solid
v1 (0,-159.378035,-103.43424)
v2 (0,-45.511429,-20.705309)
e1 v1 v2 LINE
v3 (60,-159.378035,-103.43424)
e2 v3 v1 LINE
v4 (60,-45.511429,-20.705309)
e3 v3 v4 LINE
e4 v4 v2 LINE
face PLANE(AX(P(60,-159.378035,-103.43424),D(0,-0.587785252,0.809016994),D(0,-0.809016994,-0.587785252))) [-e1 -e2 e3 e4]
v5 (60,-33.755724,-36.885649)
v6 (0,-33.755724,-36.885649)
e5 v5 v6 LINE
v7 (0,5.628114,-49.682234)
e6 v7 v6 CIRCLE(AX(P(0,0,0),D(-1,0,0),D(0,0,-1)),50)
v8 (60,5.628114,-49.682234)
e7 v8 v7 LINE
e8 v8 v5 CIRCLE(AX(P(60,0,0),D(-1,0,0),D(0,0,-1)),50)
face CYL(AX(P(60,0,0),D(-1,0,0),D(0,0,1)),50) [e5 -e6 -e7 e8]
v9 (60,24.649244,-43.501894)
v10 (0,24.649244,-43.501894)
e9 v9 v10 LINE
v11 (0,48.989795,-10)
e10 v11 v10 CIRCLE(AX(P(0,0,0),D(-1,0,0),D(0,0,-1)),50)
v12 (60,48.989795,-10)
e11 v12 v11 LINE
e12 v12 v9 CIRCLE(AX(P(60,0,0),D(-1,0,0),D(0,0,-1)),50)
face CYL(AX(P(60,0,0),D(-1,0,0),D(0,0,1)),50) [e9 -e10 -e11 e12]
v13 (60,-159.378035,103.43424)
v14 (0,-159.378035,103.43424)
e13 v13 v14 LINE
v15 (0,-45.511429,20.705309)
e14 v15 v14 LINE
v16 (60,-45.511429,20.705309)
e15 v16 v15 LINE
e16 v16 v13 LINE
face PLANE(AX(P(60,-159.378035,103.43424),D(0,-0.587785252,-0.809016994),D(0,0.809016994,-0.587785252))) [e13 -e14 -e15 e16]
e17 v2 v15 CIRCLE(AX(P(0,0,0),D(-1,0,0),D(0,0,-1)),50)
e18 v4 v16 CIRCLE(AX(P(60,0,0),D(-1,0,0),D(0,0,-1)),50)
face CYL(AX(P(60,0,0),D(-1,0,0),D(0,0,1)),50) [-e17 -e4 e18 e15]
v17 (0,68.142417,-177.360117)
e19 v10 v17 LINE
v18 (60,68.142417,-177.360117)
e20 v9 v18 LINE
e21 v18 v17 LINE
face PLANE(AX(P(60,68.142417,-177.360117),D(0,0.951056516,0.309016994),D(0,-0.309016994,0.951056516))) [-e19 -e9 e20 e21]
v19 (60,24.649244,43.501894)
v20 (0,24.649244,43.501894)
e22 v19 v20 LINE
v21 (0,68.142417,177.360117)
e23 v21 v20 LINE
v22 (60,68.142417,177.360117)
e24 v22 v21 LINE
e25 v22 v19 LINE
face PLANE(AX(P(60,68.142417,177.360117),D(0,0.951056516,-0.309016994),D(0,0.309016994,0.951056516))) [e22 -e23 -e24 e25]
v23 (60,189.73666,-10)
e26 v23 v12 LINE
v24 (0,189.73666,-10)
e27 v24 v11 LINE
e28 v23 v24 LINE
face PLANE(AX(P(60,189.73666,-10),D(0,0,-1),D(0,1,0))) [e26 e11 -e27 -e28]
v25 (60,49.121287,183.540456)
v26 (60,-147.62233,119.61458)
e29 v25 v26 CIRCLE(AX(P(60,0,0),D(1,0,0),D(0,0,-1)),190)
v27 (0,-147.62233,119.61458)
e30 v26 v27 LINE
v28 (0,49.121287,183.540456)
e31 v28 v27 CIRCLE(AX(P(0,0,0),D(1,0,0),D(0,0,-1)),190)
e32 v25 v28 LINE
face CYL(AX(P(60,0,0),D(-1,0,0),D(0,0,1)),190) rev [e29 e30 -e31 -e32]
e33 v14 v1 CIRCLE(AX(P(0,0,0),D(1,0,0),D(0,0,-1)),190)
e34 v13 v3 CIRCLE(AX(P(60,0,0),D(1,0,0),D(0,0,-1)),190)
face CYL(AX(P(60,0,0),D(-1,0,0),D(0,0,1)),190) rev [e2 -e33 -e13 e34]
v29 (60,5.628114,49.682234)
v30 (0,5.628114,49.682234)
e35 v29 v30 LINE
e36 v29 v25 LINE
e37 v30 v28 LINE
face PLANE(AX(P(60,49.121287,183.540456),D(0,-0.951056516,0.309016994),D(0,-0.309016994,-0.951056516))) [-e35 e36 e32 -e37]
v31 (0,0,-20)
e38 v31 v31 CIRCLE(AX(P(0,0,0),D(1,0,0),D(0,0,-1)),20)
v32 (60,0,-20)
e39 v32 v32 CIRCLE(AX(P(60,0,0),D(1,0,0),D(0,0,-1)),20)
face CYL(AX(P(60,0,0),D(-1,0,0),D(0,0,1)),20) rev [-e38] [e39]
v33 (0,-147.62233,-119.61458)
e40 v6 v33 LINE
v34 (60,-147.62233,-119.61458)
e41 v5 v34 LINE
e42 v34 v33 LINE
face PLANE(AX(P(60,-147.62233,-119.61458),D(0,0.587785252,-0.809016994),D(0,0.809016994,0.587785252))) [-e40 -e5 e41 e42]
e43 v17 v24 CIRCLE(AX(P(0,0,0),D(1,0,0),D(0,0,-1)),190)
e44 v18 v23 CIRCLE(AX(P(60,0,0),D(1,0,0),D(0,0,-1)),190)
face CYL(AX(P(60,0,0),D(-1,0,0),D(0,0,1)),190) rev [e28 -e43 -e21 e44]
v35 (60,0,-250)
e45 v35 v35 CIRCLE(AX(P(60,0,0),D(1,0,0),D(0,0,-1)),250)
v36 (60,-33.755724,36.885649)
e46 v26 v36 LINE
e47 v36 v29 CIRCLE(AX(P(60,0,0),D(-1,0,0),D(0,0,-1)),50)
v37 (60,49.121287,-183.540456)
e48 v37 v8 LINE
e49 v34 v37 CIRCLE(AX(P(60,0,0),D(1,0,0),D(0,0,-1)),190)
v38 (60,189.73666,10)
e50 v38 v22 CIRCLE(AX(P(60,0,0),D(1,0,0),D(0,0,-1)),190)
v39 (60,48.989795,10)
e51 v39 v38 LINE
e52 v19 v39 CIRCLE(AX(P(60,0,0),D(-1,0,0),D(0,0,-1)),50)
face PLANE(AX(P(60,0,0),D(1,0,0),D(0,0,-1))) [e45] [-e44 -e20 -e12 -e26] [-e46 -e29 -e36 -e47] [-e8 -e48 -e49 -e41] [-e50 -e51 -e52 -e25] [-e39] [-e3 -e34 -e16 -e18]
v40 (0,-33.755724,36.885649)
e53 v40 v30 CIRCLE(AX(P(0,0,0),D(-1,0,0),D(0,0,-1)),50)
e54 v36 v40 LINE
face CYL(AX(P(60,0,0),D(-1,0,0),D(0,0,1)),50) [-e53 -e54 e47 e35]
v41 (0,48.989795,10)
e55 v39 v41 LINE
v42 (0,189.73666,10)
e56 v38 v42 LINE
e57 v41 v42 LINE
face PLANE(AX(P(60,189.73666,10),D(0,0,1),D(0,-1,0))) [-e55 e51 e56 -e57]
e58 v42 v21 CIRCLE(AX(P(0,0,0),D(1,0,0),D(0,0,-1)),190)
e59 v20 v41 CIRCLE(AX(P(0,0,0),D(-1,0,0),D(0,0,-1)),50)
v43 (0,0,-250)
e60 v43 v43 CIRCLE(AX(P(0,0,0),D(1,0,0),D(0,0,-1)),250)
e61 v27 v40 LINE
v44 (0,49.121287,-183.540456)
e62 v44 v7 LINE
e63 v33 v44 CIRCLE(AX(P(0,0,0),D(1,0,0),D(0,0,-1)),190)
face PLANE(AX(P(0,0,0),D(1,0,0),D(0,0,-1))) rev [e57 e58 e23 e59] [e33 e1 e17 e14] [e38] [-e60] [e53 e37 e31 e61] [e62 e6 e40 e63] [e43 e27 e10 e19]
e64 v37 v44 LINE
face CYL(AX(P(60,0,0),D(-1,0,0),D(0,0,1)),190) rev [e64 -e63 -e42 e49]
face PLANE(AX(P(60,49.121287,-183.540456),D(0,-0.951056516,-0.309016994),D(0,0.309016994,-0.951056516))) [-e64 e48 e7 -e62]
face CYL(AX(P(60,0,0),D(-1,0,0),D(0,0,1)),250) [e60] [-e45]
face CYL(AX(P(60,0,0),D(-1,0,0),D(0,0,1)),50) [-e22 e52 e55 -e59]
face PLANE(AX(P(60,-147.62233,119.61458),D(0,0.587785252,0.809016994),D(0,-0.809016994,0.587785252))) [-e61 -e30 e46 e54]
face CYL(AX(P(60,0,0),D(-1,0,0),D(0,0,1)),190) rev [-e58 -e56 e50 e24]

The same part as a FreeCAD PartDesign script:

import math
import FreeCAD as App
import Part
import Sketcher
Q = App.Units.Quantity

doc = App.newDocument("Part")
body = doc.addObject("PartDesign::Body", "Body")

# Sketch on YZ plane
sketch1 = body.newObject("Sketcher::SketchObject", "Sketch")
sketch1.AttachmentSupport = (doc.getObject("YZ_Plane"), [""])
sketch1.MapMode = "FlatFace"
sketch1.addGeometry(Part.Circle(App.Vector(0, 0, 0), App.Vector(0, 0, 1), 250), False)
sketch1.addGeometry(Part.LineSegment(App.Vector(-34, 37, 0), App.Vector(-148, 120, 0)), False)
sketch1.addGeometry(Part.ArcOfCircle(Part.Circle(App.Vector(0, 0, 0), App.Vector(0, 0, 1), 190), math.radians(75), math.radians(141)), False)
sketch1.addGeometry(Part.LineSegment(App.Vector(49, 184, 0), App.Vector(6, 50, 0)), False)
sketch1.addGeometry(Part.ArcOfCircle(Part.Circle(App.Vector(0, 0, 0), App.Vector(0, 0, 1), 50), math.radians(84), math.radians(132)), False)
sketch1.addGeometry(Part.LineSegment(App.Vector(-46, -21, 0), App.Vector(-159, -103, 0)), False)
sketch1.addGeometry(Part.ArcOfCircle(Part.Circle(App.Vector(0, 0, 0), App.Vector(0, 0, 1), 190), math.radians(147), math.radians(213)), False)
sketch1.addGeometry(Part.LineSegment(App.Vector(-159, 103, 0), App.Vector(-46, 21, 0)), False)
sketch1.addGeometry(Part.ArcOfCircle(Part.Circle(App.Vector(0, 0, 0), App.Vector(0, 0, 1), 50), math.radians(156), math.radians(204)), False)
sketch1.addGeometry(Part.LineSegment(App.Vector(6, -50, 0), App.Vector(49, -184, 0)), False)
sketch1.addGeometry(Part.ArcOfCircle(Part.Circle(App.Vector(0, 0, 0), App.Vector(0, 0, 1), 190), math.radians(-141), math.radians(-75)), False)
sketch1.addGeometry(Part.LineSegment(App.Vector(-148, -120, 0), App.Vector(-34, -37, 0)), False)
sketch1.addGeometry(Part.ArcOfCircle(Part.Circle(App.Vector(0, 0, 0), App.Vector(0, 0, 1), 50), math.radians(-132), math.radians(-84)), False)
sketch1.addGeometry(Part.Circle(App.Vector(0, 0, 0), App.Vector(0, 0, 1), 20), False)
sketch1.addGeometry(Part.ArcOfCircle(Part.Circle(App.Vector(0, 0, 0), App.Vector(0, 0, 1), 190), math.radians(3), math.radians(69)), False)
sketch1.addGeometry(Part.LineSegment(App.Vector(190, 10, 0), App.Vector(49, 10, 0)), False)
sketch1.addGeometry(Part.ArcOfCircle(Part.Circle(App.Vector(0, 0, 0), App.Vector(0, 0, 1), 50), math.radians(12), math.radians(60)), False)
sketch1.addGeometry(Part.LineSegment(App.Vector(25, 44, 0), App.Vector(68, 177, 0)), False)
sketch1.addGeometry(Part.ArcOfCircle(Part.Circle(App.Vector(0, 0, 0), App.Vector(0, 0, 1), 190), math.radians(-69), math.radians(-3)), False)
sketch1.addGeometry(Part.LineSegment(App.Vector(68, -177, 0), App.Vector(25, -44, 0)), False)
sketch1.addGeometry(Part.ArcOfCircle(Part.Circle(App.Vector(0, 0, 0), App.Vector(0, 0, 1), 50), math.radians(-60), math.radians(-12)), False)
sketch1.addGeometry(Part.LineSegment(App.Vector(49, -10, 0), App.Vector(190, -10, 0)), False)
sketch1.addConstraint(Sketcher.Constraint("Coincident", 1, 2, 2, 2))
sketch1.addConstraint(Sketcher.Constraint("Coincident", 2, 1, 3, 1))
sketch1.addConstraint(Sketcher.Constraint("Coincident", 3, 2, 4, 1))
sketch1.addConstraint(Sketcher.Constraint("Coincident", 4, 2, 1, 1))
sketch1.addConstraint(Sketcher.Constraint("Coincident", 5, 2, 6, 2))
sketch1.addConstraint(Sketcher.Constraint("Coincident", 6, 1, 7, 1))
sketch1.addConstraint(Sketcher.Constraint("Coincident", 7, 2, 8, 1))
sketch1.addConstraint(Sketcher.Constraint("Coincident", 8, 2, 5, 1))
sketch1.addConstraint(Sketcher.Constraint("Coincident", 9, 2, 10, 2))
sketch1.addConstraint(Sketcher.Constraint("Coincident", 10, 1, 11, 1))
sketch1.addConstraint(Sketcher.Constraint("Coincident", 11, 2, 12, 1))
sketch1.addConstraint(Sketcher.Constraint("Coincident", 12, 2, 9, 1))
sketch1.addConstraint(Sketcher.Constraint("Coincident", 14, 1, 15, 1))
sketch1.addConstraint(Sketcher.Constraint("Coincident", 15, 2, 16, 1))
sketch1.addConstraint(Sketcher.Constraint("Coincident", 16, 2, 17, 1))
sketch1.addConstraint(Sketcher.Constraint("Coincident", 17, 2, 14, 2))
sketch1.addConstraint(Sketcher.Constraint("Coincident", 18, 1, 19, 1))
sketch1.addConstraint(Sketcher.Constraint("Coincident", 19, 2, 20, 1))
sketch1.addConstraint(Sketcher.Constraint("Coincident", 20, 2, 21, 1))
sketch1.addConstraint(Sketcher.Constraint("Coincident", 21, 2, 18, 2))
sketch1.addConstraint(Sketcher.Constraint("Horizontal", 15))
sketch1.addConstraint(Sketcher.Constraint("Horizontal", 21))
sketch1.addConstraint(Sketcher.Constraint("Coincident", 0, 3, -1, 1))
sketch1.addConstraint(Sketcher.Constraint("Coincident", 2, 3, -1, 1))
sketch1.addConstraint(Sketcher.Constraint("Coincident", 4, 3, -1, 1))
sketch1.addConstraint(Sketcher.Constraint("Coincident", 6, 3, -1, 1))
sketch1.addConstraint(Sketcher.Constraint("Coincident", 8, 3, -1, 1))
sketch1.addConstraint(Sketcher.Constraint("Coincident", 10, 3, -1, 1))
sketch1.addConstraint(Sketcher.Constraint("Coincident", 12, 3, -1, 1))
sketch1.addConstraint(Sketcher.Constraint("Coincident", 13, 3, -1, 1))
sketch1.addConstraint(Sketcher.Constraint("Coincident", 14, 3, -1, 1))
sketch1.addConstraint(Sketcher.Constraint("Coincident", 16, 3, -1, 1))
sketch1.addConstraint(Sketcher.Constraint("Coincident", 18, 3, -1, 1))
sketch1.addConstraint(Sketcher.Constraint("Coincident", 20, 3, -1, 1))
sketch1.addConstraint(Sketcher.Constraint("Equal", 2, 6))
sketch1.addConstraint(Sketcher.Constraint("Equal", 4, 8))
sketch1.addConstraint(Sketcher.Constraint("Equal", 6, 10))
sketch1.addConstraint(Sketcher.Constraint("Equal", 8, 12))
sketch1.addConstraint(Sketcher.Constraint("Equal", 10, 14))
sketch1.addConstraint(Sketcher.Constraint("Equal", 12, 16))
sketch1.addConstraint(Sketcher.Constraint("Equal", 14, 18))
sketch1.addConstraint(Sketcher.Constraint("Equal", 16, 20))
sketch1.addConstraint(Sketcher.Constraint("Parallel", 1, 7))
sketch1.addConstraint(Sketcher.Constraint("Parallel", 5, 11))
sketch1.addConstraint(Sketcher.Constraint("Parallel", 3, 17))
sketch1.addConstraint(Sketcher.Constraint("Parallel", 9, 19))
sketch1.addConstraint(Sketcher.Constraint("Vertical", 5, 2, 6, 1))
sketch1.addConstraint(Sketcher.Constraint("Vertical", 7, 2, 8, 2))
sketch1.addConstraint(Sketcher.Constraint("Vertical", 2, 1, 9, 2))
sketch1.addConstraint(Sketcher.Constraint("Vertical", 1, 2, 10, 1))
sketch1.addConstraint(Sketcher.Constraint("Vertical", 3, 2, 12, 2))
sketch1.addConstraint(Sketcher.Constraint("Vertical", 17, 2, 18, 1))
sketch1.addConstraint(Sketcher.Constraint("Vertical", 15, 2, 20, 2))
sketch1.addConstraint(Sketcher.Constraint("Equal", 1, 3))
sketch1.addConstraint(Sketcher.Constraint("Equal", 3, 5))
sketch1.addConstraint(Sketcher.Constraint("Equal", 11, 17))
sketch1.addConstraint(Sketcher.Constraint("Diameter", 0, 500.0))
sketch1.addConstraint(Sketcher.Constraint("Diameter", 13, 40.0))
sketch1.addConstraint(Sketcher.Constraint("Radius", 2, 190.0))
sketch1.addConstraint(Sketcher.Constraint("Radius", 4, 50.0))
sketch1.addConstraint(Sketcher.Constraint("Angle", 1, Q("144 deg")))
sketch1.addConstraint(Sketcher.Constraint("Angle", 3, Q("-108 deg")))
sketch1.addConstraint(Sketcher.Constraint("DistanceY", -1, 1, 14, 1, 10.0))
sketch1.addConstraint(Sketcher.Constraint("DistanceX", 10, 1, 8, 2, 102.1109))
pad1 = body.newObject("PartDesign::Pad", "Pad")
pad1.Profile = sketch1
pad1.Length = 60

doc.recompute()
